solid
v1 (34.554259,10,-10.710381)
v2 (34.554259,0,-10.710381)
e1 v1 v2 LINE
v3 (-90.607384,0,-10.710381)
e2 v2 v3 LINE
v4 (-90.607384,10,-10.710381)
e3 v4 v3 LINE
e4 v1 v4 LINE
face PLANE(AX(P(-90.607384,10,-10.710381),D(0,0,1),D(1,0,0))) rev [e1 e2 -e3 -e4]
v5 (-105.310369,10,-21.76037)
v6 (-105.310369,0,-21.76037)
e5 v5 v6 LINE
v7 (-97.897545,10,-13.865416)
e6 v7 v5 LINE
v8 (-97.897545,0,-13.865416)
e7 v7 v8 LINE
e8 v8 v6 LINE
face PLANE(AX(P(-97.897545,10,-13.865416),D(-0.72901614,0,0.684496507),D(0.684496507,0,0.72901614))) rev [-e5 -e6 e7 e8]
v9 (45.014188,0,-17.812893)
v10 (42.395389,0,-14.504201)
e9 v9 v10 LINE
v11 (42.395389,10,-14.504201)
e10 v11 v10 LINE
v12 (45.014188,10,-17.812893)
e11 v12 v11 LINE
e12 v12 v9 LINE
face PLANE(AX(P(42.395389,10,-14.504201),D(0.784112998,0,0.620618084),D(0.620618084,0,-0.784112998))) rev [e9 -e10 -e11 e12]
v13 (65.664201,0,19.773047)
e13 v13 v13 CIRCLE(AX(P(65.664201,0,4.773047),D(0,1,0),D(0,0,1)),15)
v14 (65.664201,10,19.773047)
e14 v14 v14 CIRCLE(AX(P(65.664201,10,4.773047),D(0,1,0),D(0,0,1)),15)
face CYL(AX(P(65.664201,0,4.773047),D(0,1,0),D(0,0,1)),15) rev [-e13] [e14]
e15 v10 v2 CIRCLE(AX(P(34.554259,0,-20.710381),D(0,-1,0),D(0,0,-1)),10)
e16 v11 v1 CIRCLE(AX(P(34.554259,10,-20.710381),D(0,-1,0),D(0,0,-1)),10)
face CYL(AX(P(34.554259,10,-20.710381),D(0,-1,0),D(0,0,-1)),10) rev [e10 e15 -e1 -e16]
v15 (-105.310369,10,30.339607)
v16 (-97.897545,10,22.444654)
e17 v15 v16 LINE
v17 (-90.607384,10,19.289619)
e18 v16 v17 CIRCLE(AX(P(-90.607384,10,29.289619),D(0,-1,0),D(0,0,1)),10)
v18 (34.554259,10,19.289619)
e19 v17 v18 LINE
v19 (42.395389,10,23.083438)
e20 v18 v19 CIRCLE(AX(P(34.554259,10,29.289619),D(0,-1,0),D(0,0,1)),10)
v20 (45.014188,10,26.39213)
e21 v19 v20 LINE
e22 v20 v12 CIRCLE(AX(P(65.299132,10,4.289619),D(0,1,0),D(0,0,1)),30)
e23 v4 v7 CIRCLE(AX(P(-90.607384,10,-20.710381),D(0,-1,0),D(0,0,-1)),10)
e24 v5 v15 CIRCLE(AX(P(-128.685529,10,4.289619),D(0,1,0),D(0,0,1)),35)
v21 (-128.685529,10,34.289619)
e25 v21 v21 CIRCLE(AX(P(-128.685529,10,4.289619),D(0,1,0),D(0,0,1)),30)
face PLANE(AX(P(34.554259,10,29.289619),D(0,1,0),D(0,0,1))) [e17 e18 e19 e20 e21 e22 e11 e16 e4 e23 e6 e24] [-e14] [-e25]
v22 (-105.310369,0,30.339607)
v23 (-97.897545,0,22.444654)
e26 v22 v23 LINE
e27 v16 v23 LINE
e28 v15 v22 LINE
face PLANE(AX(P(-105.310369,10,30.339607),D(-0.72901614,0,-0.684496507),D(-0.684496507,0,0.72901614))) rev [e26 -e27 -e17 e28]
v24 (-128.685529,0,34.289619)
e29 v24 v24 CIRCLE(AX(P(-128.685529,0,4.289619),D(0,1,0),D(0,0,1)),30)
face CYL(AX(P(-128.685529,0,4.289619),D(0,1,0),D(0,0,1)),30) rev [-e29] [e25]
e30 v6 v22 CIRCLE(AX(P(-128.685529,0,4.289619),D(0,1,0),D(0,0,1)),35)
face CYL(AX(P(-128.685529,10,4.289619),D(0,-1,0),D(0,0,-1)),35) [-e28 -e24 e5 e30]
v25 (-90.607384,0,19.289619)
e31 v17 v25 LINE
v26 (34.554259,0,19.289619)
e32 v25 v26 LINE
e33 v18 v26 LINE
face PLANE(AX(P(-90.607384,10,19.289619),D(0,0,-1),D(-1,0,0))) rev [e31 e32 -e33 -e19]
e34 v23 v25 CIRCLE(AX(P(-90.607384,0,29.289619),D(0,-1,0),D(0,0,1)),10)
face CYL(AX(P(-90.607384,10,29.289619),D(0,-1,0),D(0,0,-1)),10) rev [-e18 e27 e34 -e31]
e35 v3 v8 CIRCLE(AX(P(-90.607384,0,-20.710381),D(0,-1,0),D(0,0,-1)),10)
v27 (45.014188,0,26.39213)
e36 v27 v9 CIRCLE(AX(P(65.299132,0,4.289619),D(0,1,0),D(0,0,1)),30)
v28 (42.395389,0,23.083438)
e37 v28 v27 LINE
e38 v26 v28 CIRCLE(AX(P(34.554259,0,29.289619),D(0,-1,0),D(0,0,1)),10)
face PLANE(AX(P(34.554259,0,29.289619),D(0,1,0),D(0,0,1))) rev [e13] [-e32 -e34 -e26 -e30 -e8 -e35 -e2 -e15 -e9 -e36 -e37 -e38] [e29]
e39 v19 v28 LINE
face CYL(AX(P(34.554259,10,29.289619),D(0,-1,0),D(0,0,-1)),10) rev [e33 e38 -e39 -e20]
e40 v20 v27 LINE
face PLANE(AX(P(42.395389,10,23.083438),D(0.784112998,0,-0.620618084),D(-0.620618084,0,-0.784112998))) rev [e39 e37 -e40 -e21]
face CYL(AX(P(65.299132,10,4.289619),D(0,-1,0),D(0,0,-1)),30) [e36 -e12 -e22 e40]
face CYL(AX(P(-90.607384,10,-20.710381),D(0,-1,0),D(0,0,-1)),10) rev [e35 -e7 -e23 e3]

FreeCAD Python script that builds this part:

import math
import FreeCAD as App
import Part
import Sketcher

V = App.Vector
Q = App.Units.Quantity

doc = App.newDocument("Part")
body = doc.addObject("PartDesign::Body", "Body")

# Sketch on XZ plane
sketch1 = doc.addObject("Sketcher::SketchObject", "Sketch")
body.addObject(sketch1)
sketch1.AttachmentSupport = (doc.XZ_Plane, [""])
sketch1.MapMode = "FlatFace"
sketch1.addGeometry([
    Part.LineSegment(V(45.014188, -17.812893, 0), V(42.395389, -14.504201, 0)),  # 0
    Part.ArcOfCircle(Part.Circle(V(34.554259, -20.710381, 0), V(0, 0, 1), 10), math.radians(38.361284), math.radians(90)),  # 1
    Part.LineSegment(V(34.554259, -10.710381, 0), V(-90.607384, -10.710381, 0)),  # 2
    Part.ArcOfCircle(Part.Circle(V(-90.607384, -20.710381, 0), V(0, 0, 1), 10), math.radians(90), math.radians(136.803977)),  # 3
    Part.LineSegment(V(-97.897545, -13.865416, 0), V(-105.310369, -21.76037, 0)),  # 4
    Part.ArcOfCircle(Part.Circle(V(-128.685529, 4.289619, 0), V(0, 0, 1), 35), math.radians(48.097756), math.radians(311.902244)),  # 5
    Part.LineSegment(V(-105.310369, 30.339607, 0), V(-97.897545, 22.444654, 0)),  # 6
    Part.ArcOfCircle(Part.Circle(V(-90.607383, 29.289619, 0), V(0, 0, 1), 10), math.radians(-136.803977), math.radians(-90)),  # 7
    Part.LineSegment(V(-90.607384, 19.289619, 0), V(34.554259, 19.289619, 0)),  # 8
    Part.ArcOfCircle(Part.Circle(V(34.554259, 29.289619, 0), V(0, 0, 1), 10), math.radians(-90), math.radians(-38.361284)),  # 9
    Part.LineSegment(V(42.395389, 23.083438, 0), V(45.014188, 26.39213, 0)),  # 10
    Part.ArcOfCircle(Part.Circle(V(65.299132, 4.289619, 0), V(0, 0, 1), 30), math.radians(-132.544671), math.radians(132.544671)),  # 11
    Part.Circle(V(65.299132, 4.289619, 0), V(0, 0, 1), 0.605787),  # 12
], False)
sketch1.addConstraint([
    Sketcher.Constraint("Tangent", 0, 2, 1, 1),
    Sketcher.Constraint("Tangent", 1, 2, 2, 1),
    Sketcher.Constraint("Tangent", 2, 2, 3, 1),
    Sketcher.Constraint("Tangent", 3, 2, 4, 1),
    Sketcher.Constraint("Coincident", 4, 2, 5, 2),
    Sketcher.Constraint("Coincident", 5, 1, 6, 1),
    Sketcher.Constraint("Tangent", 6, 2, 7, 1),
    Sketcher.Constraint("Tangent", 7, 2, 8, 1),
    Sketcher.Constraint("Tangent", 8, 2, 9, 1),
    Sketcher.Constraint("Tangent", 9, 2, 10, 1),
    Sketcher.Constraint("Coincident", 10, 2, 11, 2),
    Sketcher.Constraint("Coincident", 11, 1, 0, 1),
    Sketcher.Constraint("Horizontal", 2),
    Sketcher.Constraint("Horizontal", 8),
    Sketcher.Constraint("Coincident", 12, 3, 11, 3),
    Sketcher.Constraint("Equal", 1, 3),
    Sketcher.Constraint("Equal", 3, 7),
    Sketcher.Constraint("Equal", 7, 9),
    Sketcher.Constraint("Horizontal", 5, 3, 11, 3),
    Sketcher.Constraint("Vertical", 3, 3, 7, 3),
    Sketcher.Constraint("Vertical", 1, 3, 9, 3),
    Sketcher.Constraint("Vertical", 4, 2, 5, 1),
    Sketcher.Constraint("Vertical", 3, 2, 6, 2),
    Sketcher.Constraint("Vertical", 0, 2, 9, 2),
    Sketcher.Constraint("Radius", 1, Q("10 mm")),
    Sketcher.Constraint("Radius", 5, Q("35 mm")),
    Sketcher.Constraint("Radius", 11, Q("30 mm")),
    Sketcher.Constraint("DistanceY", 3, 3, 5, 3, Q("25 mm")),
    Sketcher.Constraint("Diameter", 12, Q("1.211574 mm")),
    Sketcher.Constraint("Distance", 4, Q("10.829601 mm")),
    Sketcher.Constraint("DistanceY", 0, 2, -1, 1, Q("14.504201 mm")),
    Sketcher.Constraint("DistanceX", 9, 2, 10, 2, Q("2.618799 mm")),
    Sketcher.Constraint("DistanceX", 2, 2, 2, 1, Q("125.161642 mm")),
    Sketcher.Constraint("DistanceX", -1, 1, 1, 3, Q("34.554259 mm")),
    Sketcher.Constraint("DistanceY", 1, 3, -1, 1, Q("20.710381 mm")),
    Sketcher.Constraint("DistanceX", 5, 3, -1, 1, Q("128.685529 mm")),
])
pad1 = doc.addObject("PartDesign::Pad", "Pad")
body.addObject(pad1)
pad1.Profile = sketch1
pad1.Length = 10
pad1.Reversed = True

# Sketch on XZ plane
sketch2 = doc.addObject("Sketcher::SketchObject", "Sketch001")
body.addObject(sketch2)
sketch2.AttachmentSupport = (doc.XZ_Plane, [""])
sketch2.MapMode = "FlatFace"
sketch2.AttachmentOffset = App.Placement(V(0, 0, -10), App.Rotation())
sketch2.addGeometry([
    Part.Circle(V(-128.685529, 4.289619, 0), V(0, 0, 1), 30),
    Part.Circle(V(65.664201, 4.773047, 0), V(0, 0, 1), 15),
], False)
sketch2.addConstraint([
    Sketcher.Constraint("Diameter", 0, Q("60 mm")),
    Sketcher.Constraint("Diameter", 1, Q("30 mm")),
    Sketcher.Constraint("DistanceX", -1, 1, 1, 3, Q("65.664201 mm")),
    Sketcher.Constraint("DistanceX", 0, 3, -1, 1, Q("128.685529 mm")),
    Sketcher.Constraint("DistanceY", -1, 1, 0, 3, Q("4.289619 mm")),
    Sketcher.Constraint("DistanceY", 0, 3, 1, 3, Q("0.483428 mm")),
])
pocket1 = doc.addObject("PartDesign::Pocket", "Pocket")
body.addObject(pocket1)
pocket1.Profile = sketch2
pocket1.Length = 10
pocket1.Reversed = True

doc.recompute()
